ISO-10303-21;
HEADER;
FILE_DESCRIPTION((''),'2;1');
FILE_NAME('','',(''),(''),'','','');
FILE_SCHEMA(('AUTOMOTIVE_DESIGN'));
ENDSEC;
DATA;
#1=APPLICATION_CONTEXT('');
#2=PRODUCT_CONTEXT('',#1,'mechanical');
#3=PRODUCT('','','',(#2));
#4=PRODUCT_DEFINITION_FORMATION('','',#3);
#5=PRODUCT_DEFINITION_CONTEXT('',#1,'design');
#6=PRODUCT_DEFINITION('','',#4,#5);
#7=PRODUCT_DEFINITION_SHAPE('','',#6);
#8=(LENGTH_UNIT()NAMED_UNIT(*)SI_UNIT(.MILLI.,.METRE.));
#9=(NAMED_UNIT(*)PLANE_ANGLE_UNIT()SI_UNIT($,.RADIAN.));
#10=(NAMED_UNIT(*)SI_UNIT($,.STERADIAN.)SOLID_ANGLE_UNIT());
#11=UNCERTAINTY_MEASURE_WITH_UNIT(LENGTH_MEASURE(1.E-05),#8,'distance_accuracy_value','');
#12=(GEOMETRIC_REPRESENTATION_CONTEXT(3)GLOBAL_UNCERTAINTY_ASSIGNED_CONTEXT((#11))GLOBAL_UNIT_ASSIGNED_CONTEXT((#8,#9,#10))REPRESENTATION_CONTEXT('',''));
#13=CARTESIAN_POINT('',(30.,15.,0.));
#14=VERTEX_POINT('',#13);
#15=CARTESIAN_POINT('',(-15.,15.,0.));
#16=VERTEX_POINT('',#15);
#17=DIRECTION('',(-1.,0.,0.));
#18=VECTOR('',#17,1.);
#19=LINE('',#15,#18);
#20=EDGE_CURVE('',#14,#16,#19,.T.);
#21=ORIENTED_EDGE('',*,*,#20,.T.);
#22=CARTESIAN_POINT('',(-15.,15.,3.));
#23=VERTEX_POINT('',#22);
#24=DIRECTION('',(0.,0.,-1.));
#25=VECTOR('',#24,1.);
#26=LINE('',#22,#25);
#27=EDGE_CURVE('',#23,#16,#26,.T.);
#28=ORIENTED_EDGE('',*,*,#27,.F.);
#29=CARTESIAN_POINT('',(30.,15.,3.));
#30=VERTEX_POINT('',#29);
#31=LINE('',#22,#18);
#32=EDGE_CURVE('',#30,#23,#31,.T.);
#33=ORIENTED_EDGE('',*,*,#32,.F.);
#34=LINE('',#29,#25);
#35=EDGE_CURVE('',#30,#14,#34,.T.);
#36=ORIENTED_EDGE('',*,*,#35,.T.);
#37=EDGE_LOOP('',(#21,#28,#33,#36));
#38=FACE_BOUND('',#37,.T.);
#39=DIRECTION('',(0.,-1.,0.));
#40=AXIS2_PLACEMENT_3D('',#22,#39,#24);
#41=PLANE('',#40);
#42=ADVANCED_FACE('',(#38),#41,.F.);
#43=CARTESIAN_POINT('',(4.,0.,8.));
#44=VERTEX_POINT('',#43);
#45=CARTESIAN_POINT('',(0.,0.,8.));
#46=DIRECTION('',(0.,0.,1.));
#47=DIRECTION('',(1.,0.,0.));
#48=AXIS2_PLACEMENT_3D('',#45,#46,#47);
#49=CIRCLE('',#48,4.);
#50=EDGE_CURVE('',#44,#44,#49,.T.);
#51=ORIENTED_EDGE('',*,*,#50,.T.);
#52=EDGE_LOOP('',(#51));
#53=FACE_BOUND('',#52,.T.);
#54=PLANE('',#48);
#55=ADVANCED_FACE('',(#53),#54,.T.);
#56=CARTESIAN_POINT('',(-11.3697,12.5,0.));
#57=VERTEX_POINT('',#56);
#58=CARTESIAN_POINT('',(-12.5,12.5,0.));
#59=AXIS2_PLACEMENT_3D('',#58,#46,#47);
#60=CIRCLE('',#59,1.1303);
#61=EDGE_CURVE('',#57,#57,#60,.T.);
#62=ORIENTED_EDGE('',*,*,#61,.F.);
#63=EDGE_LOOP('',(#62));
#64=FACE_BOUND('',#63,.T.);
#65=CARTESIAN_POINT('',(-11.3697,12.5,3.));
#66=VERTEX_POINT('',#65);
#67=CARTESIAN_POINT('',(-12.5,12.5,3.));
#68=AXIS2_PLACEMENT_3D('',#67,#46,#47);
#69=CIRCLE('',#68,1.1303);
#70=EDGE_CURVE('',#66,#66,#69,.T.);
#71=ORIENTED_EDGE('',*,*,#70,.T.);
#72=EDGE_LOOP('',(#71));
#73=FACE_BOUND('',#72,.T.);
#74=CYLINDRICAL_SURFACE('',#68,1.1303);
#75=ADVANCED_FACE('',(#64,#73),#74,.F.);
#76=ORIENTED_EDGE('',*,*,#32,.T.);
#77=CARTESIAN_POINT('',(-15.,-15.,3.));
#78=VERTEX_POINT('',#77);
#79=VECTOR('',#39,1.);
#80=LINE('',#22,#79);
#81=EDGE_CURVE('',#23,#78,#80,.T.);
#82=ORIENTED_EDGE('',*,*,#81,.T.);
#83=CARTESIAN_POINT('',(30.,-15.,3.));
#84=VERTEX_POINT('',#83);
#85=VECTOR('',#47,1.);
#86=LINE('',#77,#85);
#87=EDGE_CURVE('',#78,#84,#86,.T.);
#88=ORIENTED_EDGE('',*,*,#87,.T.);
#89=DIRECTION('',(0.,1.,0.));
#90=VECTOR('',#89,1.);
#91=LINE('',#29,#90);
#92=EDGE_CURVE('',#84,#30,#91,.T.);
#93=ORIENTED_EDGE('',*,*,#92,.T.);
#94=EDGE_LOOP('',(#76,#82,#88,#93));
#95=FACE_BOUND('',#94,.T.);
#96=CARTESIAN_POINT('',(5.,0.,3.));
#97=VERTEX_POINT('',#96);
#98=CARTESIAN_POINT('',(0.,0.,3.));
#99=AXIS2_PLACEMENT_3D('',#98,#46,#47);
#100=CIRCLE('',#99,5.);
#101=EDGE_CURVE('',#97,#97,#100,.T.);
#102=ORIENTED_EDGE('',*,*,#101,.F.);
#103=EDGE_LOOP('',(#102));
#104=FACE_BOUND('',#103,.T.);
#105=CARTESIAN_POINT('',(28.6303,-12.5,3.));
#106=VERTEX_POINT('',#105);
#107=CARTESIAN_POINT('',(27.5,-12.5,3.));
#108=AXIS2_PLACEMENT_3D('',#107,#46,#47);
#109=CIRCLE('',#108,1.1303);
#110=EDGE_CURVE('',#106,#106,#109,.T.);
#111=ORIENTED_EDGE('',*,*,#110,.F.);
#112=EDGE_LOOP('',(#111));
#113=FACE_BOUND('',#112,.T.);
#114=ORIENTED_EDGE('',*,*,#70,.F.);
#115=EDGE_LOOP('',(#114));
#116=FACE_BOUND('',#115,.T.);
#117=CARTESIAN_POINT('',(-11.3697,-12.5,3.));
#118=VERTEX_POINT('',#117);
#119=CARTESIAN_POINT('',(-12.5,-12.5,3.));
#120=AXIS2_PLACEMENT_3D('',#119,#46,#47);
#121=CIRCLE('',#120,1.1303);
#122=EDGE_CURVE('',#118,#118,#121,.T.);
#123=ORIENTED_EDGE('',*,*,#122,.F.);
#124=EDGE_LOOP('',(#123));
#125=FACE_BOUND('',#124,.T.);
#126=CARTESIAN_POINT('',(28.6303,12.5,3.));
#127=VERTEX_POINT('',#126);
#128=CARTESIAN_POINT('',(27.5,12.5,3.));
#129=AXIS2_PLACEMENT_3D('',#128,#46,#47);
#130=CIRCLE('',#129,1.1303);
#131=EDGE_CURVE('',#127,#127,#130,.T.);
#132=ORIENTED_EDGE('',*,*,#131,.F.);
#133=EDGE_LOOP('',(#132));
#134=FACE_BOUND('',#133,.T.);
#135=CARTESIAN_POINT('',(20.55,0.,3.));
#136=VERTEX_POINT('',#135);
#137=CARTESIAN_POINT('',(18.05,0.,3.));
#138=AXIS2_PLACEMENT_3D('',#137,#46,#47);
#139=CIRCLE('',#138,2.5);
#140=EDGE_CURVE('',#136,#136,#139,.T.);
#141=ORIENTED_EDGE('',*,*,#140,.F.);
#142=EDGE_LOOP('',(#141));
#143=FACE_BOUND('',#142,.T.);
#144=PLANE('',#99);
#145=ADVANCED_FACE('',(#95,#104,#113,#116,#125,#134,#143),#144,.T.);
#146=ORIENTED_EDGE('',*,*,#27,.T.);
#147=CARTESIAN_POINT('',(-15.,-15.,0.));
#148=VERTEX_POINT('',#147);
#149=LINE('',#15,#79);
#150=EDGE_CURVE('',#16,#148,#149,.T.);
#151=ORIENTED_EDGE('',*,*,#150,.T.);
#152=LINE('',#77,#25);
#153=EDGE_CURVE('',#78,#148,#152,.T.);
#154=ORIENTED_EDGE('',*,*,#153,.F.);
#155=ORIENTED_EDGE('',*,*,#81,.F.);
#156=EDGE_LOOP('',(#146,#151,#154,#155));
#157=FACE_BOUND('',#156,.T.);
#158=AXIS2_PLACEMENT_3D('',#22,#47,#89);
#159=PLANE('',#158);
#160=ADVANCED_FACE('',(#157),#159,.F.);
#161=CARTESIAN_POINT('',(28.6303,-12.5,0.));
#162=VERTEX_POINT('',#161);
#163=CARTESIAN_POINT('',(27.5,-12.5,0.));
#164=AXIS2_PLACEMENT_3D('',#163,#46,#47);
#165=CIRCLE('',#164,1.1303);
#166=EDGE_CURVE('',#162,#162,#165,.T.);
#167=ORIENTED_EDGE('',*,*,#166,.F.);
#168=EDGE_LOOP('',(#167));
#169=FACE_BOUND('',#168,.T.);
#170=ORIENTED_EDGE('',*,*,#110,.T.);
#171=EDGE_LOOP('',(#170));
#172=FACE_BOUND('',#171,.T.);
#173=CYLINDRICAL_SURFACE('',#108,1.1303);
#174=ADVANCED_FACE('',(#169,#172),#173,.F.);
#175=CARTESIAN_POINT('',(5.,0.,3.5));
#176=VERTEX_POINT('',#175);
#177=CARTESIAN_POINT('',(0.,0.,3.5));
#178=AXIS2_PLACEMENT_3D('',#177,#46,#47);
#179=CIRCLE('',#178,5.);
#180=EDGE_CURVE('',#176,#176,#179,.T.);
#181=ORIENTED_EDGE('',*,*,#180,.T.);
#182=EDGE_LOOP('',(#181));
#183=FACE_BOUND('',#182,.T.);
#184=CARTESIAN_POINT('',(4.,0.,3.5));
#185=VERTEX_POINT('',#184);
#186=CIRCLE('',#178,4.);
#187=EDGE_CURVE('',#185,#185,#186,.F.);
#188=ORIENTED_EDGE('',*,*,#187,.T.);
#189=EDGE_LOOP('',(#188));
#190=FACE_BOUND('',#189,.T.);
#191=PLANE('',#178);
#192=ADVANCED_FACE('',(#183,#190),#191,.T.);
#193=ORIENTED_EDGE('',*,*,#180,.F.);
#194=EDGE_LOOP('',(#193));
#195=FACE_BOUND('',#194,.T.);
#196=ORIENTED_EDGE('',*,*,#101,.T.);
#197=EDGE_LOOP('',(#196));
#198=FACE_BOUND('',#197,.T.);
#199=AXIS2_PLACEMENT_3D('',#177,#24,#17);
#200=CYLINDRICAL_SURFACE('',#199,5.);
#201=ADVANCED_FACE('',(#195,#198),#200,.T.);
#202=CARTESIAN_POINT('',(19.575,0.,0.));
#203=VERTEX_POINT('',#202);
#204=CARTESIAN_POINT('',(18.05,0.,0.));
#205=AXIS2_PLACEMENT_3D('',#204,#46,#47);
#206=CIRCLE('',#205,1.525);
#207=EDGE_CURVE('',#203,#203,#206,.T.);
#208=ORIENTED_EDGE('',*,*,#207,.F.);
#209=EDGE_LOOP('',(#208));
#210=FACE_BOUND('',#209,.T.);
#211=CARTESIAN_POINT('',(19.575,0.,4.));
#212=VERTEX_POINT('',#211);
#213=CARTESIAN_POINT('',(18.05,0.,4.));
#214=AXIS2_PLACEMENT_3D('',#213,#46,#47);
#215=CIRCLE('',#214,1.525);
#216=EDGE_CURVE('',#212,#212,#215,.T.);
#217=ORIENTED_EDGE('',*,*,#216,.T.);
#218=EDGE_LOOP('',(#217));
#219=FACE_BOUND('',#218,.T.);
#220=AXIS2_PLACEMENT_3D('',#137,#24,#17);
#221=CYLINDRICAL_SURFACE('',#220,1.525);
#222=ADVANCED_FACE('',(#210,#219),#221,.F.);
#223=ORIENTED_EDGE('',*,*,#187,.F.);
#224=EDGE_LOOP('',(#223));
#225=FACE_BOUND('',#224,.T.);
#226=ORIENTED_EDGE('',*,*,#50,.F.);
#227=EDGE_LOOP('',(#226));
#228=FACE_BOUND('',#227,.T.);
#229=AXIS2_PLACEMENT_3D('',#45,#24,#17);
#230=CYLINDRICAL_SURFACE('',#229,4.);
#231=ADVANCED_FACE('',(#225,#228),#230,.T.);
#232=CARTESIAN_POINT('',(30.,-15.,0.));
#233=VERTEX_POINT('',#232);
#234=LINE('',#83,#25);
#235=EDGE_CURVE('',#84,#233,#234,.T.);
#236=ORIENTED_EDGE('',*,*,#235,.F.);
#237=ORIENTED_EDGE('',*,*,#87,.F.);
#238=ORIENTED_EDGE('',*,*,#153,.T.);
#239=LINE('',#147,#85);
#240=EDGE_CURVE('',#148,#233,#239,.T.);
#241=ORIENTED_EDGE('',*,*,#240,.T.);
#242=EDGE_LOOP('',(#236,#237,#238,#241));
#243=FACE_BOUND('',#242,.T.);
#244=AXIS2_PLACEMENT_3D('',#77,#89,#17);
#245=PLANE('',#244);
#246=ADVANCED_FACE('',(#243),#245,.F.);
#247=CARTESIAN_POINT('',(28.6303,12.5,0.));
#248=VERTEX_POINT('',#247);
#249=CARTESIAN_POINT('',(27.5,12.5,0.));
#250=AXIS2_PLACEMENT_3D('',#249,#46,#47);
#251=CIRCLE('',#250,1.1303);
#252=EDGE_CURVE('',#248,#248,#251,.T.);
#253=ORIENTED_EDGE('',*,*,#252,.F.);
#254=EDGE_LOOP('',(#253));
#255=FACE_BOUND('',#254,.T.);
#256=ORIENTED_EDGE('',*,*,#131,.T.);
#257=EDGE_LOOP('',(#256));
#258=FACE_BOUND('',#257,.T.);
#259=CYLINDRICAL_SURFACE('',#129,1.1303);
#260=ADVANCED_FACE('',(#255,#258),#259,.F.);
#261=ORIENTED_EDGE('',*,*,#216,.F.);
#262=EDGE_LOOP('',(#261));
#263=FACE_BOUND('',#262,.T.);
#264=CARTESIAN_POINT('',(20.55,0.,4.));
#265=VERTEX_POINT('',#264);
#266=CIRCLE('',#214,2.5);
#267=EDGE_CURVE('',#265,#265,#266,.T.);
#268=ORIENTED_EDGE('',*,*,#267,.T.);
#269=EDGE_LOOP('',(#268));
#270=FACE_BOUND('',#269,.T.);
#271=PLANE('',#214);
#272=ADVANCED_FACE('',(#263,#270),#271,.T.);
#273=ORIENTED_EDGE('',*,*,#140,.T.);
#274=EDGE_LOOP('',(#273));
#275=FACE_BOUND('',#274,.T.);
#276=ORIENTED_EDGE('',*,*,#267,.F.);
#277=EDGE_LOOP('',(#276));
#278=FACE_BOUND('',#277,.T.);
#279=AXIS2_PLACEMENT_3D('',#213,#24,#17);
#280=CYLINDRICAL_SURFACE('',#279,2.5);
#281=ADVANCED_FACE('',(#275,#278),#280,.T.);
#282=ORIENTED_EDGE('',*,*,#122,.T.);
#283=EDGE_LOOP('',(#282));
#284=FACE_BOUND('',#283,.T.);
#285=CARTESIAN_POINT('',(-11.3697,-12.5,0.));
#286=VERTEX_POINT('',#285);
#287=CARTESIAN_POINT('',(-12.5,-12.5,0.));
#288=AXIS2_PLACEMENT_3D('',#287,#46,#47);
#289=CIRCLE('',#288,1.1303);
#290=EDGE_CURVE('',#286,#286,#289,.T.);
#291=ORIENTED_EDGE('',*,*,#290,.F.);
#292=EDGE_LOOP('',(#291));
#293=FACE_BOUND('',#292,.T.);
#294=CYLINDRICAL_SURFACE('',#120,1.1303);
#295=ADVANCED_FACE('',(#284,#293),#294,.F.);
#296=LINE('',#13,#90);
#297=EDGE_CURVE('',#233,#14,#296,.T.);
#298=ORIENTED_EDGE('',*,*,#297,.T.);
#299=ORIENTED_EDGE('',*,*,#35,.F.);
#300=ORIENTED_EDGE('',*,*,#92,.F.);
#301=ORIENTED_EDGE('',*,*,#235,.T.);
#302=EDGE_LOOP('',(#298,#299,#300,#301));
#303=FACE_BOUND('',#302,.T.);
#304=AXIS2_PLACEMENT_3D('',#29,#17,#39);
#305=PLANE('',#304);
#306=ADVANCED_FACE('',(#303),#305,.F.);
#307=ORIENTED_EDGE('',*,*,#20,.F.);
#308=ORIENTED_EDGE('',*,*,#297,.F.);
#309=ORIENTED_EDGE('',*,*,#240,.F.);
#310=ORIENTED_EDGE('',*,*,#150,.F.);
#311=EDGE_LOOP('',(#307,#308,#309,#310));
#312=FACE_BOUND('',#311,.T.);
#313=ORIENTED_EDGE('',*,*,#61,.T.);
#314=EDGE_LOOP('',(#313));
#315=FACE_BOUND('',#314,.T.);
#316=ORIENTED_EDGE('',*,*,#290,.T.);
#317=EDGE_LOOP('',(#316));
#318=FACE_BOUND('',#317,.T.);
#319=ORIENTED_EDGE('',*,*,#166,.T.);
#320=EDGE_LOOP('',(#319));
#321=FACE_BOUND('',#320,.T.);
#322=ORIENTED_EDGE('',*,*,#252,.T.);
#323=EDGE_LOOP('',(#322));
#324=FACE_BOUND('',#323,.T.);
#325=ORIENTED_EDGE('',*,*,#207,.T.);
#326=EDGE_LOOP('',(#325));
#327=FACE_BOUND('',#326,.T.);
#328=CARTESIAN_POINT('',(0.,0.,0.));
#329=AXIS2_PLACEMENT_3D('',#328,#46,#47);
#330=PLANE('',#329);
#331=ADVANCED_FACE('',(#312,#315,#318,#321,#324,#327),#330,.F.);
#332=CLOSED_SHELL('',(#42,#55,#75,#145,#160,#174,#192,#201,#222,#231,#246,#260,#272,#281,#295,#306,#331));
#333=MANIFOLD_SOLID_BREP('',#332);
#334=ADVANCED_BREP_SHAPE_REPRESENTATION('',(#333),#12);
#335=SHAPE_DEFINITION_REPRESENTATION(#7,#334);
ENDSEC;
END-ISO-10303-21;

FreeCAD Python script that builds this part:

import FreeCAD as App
import Part
import Sketcher

V = App.Vector

doc = App.newDocument("Part")
params = doc.addObject("Spreadsheet::Sheet", "Params")
for row, (alias, value) in enumerate([
    ("sketch1_diameter", "3.05 mm"),
    ("sketch1_width", "45 mm"),
    ("sketch1_height", "30 mm"),
    ("pad1_length", "3 mm"),
    ("sketch2_diameter", "8 mm"),
    ("pad2_length", "5 mm"),
    ("sketch3_diameter", "10 mm"),
    ("pad3_length", "0.5 mm"),
    ("hole_diameter", "2.2606 mm"),
    ("sketch5_diameter", "5 mm"),
    ("sketch5_diameter2", "3.05 mm"),
    ("pad4_length", "1 mm"),
], start=1):
    params.set(f"A{row}", alias)
    params.set(f"B{row}", "=" + value)
    params.setAlias(f"B{row}", alias)

body = doc.addObject("PartDesign::Body", "Body")

# Sketch on XY plane
sketch1 = body.newObject("Sketcher::SketchObject", "Sketch")
sketch1.AttachmentSupport = (doc.getObject("XY_Plane"), [""])
sketch1.MapMode = "FlatFace"
sketch1.addGeometry(Part.LineSegment(V(-15, 15, 0), V(-15, -15, 0)), False)
sketch1.addGeometry(Part.LineSegment(V(-15, -15, 0), V(30, -15, 0)), False)
sketch1.addGeometry(Part.LineSegment(V(30, -15, 0), V(30, 15, 0)), False)
sketch1.addGeometry(Part.LineSegment(V(30, 15, 0), V(-15, 15, 0)), False)
sketch1.addGeometry(Part.Circle(V(18.05, 0, 0), V(0, 0, 1), 1.525), False)
sketch1.addConstraint(Sketcher.Constraint("Coincident", 0, 2, 1, 1))
sketch1.addConstraint(Sketcher.Constraint("Coincident", 1, 2, 2, 1))
sketch1.addConstraint(Sketcher.Constraint("Coincident", 2, 2, 3, 1))
sketch1.addConstraint(Sketcher.Constraint("Coincident", 3, 2, 0, 1))
sketch1.addConstraint(Sketcher.Constraint("Vertical", 0))
sketch1.addConstraint(Sketcher.Constraint("Horizontal", 1))
sketch1.addConstraint(Sketcher.Constraint("Vertical", 2))
sketch1.addConstraint(Sketcher.Constraint("Horizontal", 3))
sketch1.addConstraint(Sketcher.Constraint("PointOnObject", 4, 3, -1))
sketch1.addConstraint(Sketcher.Constraint("Diameter", 4, 3.05))
sketch1.addConstraint(Sketcher.Constraint("DistanceX", 1, 1, 1, 2, 45.0))
sketch1.addConstraint(Sketcher.Constraint("DistanceY", 0, 2, 0, 1, 30.0))
sketch1.addConstraint(Sketcher.Constraint("DistanceX", 0, 2, -1, 1, 15.0))
sketch1.addConstraint(Sketcher.Constraint("DistanceY", 0, 2, -1, 1, 15.0))
sketch1.addConstraint(Sketcher.Constraint("DistanceX", -1, 1, 4, 3, 18.05))
sketch1.setExpression("Constraints[9]", "Params.sketch1_diameter")
sketch1.setExpression("Constraints[10]", "Params.sketch1_width")
sketch1.setExpression("Constraints[11]", "Params.sketch1_height")
pad1 = body.newObject("PartDesign::Pad", "Pad")
pad1.Profile = sketch1
pad1.setExpression("Length", "Params.pad1_length")

# Sketch on XY plane
sketch2 = body.newObject("Sketcher::SketchObject", "Sketch001")
sketch2.AttachmentSupport = (doc.getObject("XY_Plane"), [""])
sketch2.MapMode = "FlatFace"
sketch2.AttachmentOffset = App.Placement(V(0, 0, 3), App.Rotation())
sketch2.addGeometry(Part.Circle(V(0, 0, 0), V(0, 0, 1), 4), False)
sketch2.addConstraint(Sketcher.Constraint("Coincident", 0, 3, -1, 1))
sketch2.addConstraint(Sketcher.Constraint("Diameter", 0, 8.0))
sketch2.setExpression("Constraints[1]", "Params.sketch2_diameter")
pad2 = body.newObject("PartDesign::Pad", "Pad001")
pad2.Profile = sketch2
pad2.setExpression("Length", "Params.pad2_length")

# Sketch on XY plane
sketch3 = body.newObject("Sketcher::SketchObject", "Sketch002")
sketch3.AttachmentSupport = (doc.getObject("XY_Plane"), [""])
sketch3.MapMode = "FlatFace"
sketch3.AttachmentOffset = App.Placement(V(0, 0, 3), App.Rotation())
sketch3.addGeometry(Part.Circle(V(0, 0, 0), V(0, 0, 1), 5), False)
sketch3.addConstraint(Sketcher.Constraint("Coincident", 0, 3, -1, 1))
sketch3.addConstraint(Sketcher.Constraint("Diameter", 0, 10.0))
sketch3.setExpression("Constraints[1]", "Params.sketch3_diameter")
pad3 = body.newObject("PartDesign::Pad", "Pad002")
pad3.Profile = sketch3
pad3.setExpression("Length", "Params.pad3_length")

# Sketch on XY plane
sketch4 = body.newObject("Sketcher::SketchObject", "Sketch003")
sketch4.AttachmentSupport = (doc.getObject("XY_Plane"), [""])
sketch4.MapMode = "FlatFace"
sketch4.AttachmentOffset = App.Placement(V(0, 0, 3), App.Rotation())
sketch4.addGeometry(Part.Circle(V(-12.5, 12.5, 0), V(0, 0, 1), 1.1303), False)
sketch4.addGeometry(Part.Circle(V(-12.5, -12.5, 0), V(0, 0, 1), 1.1303), False)
sketch4.addGeometry(Part.Circle(V(27.5, -12.5, 0), V(0, 0, 1), 1.1303), False)
sketch4.addGeometry(Part.Circle(V(27.5, 12.5, 0), V(0, 0, 1), 1.1303), False)
sketch4.addConstraint(Sketcher.Constraint("Equal", 0, 1))
sketch4.addConstraint(Sketcher.Constraint("Equal", 1, 2))
sketch4.addConstraint(Sketcher.Constraint("Equal", 2, 3))
sketch4.addConstraint(Sketcher.Constraint("Symmetric", 0, 3, 1, 3, -1))
sketch4.addConstraint(Sketcher.Constraint("Symmetric", 2, 3, 3, 3, -1))
sketch4.addConstraint(Sketcher.Constraint("Horizontal", 1, 3, 2, 3))
sketch4.addConstraint(Sketcher.Constraint("DistanceY", 1, 3, 0, 3, 25.0))
sketch4.addConstraint(Sketcher.Constraint("DistanceX", 1, 3, 2, 3, 40.0))
sketch4.addConstraint(Sketcher.Constraint("Diameter", 0, 2.2606))
sketch4.addConstraint(Sketcher.Constraint("DistanceX", 0, 3, -1, 1, 12.5))
doc.recompute()
hole = body.newObject("PartDesign::Hole", "Hole")
hole.Profile = sketch4
hole.ThreadType = "None"
hole.setExpression("Diameter", "Params.hole_diameter")
hole.DepthType = "ThroughAll"

# Sketch on XY plane
sketch5 = body.newObject("Sketcher::SketchObject", "Sketch004")
sketch5.AttachmentSupport = (doc.getObject("XY_Plane"), [""])
sketch5.MapMode = "FlatFace"
sketch5.AttachmentOffset = App.Placement(V(0, 0, 3), App.Rotation())
sketch5.addGeometry(Part.Circle(V(18.05, 0, 0), V(0, 0, 1), 2.5), False)
sketch5.addGeometry(Part.Circle(V(18.05, 0, 0), V(0, 0, 1), 1.525), False)
sketch5.addConstraint(Sketcher.Constraint("Coincident", 1, 3, 0, 3))
sketch5.addConstraint(Sketcher.Constraint("PointOnObject", 0, 3, -1))
sketch5.addConstraint(Sketcher.Constraint("Diameter", 0, 5.0))
sketch5.addConstraint(Sketcher.Constraint("Diameter", 1, 3.05))
sketch5.addConstraint(Sketcher.Constraint("DistanceX", -1, 1, 0, 3, 18.05))
sketch5.setExpression("Constraints[2]", "Params.sketch5_diameter")
sketch5.setExpression("Constraints[3]", "Params.sketch5_diameter2")
pad4 = body.newObject("PartDesign::Pad", "Pad003")
pad4.Profile = sketch5
pad4.setExpression("Length", "Params.pad4_length")

doc.recompute()
